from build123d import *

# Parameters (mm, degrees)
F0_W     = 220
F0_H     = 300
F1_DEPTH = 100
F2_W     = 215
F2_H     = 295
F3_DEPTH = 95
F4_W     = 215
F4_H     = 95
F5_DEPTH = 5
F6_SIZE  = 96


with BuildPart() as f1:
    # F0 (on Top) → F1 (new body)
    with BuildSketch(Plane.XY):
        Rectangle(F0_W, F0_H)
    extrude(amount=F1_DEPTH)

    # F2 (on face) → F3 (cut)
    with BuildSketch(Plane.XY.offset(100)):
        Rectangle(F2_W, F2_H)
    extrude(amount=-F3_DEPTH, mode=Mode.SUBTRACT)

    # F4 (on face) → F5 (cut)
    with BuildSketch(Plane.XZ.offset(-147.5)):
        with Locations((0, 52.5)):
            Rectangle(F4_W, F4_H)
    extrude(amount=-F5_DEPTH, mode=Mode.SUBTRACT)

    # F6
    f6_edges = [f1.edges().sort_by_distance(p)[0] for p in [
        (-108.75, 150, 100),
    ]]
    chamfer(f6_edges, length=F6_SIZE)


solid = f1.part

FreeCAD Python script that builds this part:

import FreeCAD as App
import Part
import Sketcher
Q = App.Units.Quantity


def edges_at(feature, points):
    """Names of the edges that pass closest to the given points."""
    edges = feature.Shape.Edges
    near = lambda p: min(range(len(edges)), key=lambda i: edges[i].distToShape(Part.Vertex(*p))[0])
    return sorted({f"Edge{near(p) + 1}" for p in points})


def add_polygon(sketch, points):
    """Adds a closed chain of lines whose ends are joined by coincident constraints."""
    first, n = sketch.GeometryCount, len(points)
    for a, b in zip(points, points[1:] + points[:1]):
        sketch.addGeometry(Part.LineSegment(App.Vector(*a, 0), App.Vector(*b, 0)), False)
    for i in range(n):
        sketch.addConstraint(Sketcher.Constraint("Coincident", first + i, 2, first + (i + 1) % n, 1))

doc = App.newDocument("Part")
body = doc.addObject("PartDesign::Body", "Body")

sketch1 = body.newObject("Sketcher::SketchObject", "Sketch")
sketch1.AttachmentSupport = (doc.getObject("XY_Plane"), [""])
sketch1.MapMode = "FlatFace"
add_polygon(sketch1, [(-110, 150), (-110, -150), (110, -150), (110, 150)])
sketch1.addConstraint(Sketcher.Constraint("Vertical", 0))
sketch1.addConstraint(Sketcher.Constraint("Horizontal", 1))
sketch1.addConstraint(Sketcher.Constraint("Vertical", 2))
sketch1.addConstraint(Sketcher.Constraint("Horizontal", 3))
sketch1.addConstraint(Sketcher.Constraint("Symmetric", 0, 2, 2, 2, -1, 1))
sketch1.addConstraint(Sketcher.Constraint("DistanceX", 1, 1, 1, 2, Q("220 mm")))
sketch1.addConstraint(Sketcher.Constraint("DistanceY", 0, 2, 0, 1, Q("300 mm")))
pad1 = body.newObject("PartDesign::Pad", "Pad")
pad1.Profile = sketch1
pad1.Length = 100

sketch2 = body.newObject("Sketcher::SketchObject", "Sketch001")
sketch2.AttachmentSupport = (doc.getObject("XY_Plane"), [""])
sketch2.MapMode = "FlatFace"
sketch2.AttachmentOffset = App.Placement(App.Vector(0, 0, 100), App.Rotation())
add_polygon(sketch2, [(-108, 148), (-108, -148), (108, -148), (108, 148)])
sketch2.addConstraint(Sketcher.Constraint("Vertical", 0))
sketch2.addConstraint(Sketcher.Constraint("Horizontal", 1))
sketch2.addConstraint(Sketcher.Constraint("Vertical", 2))
sketch2.addConstraint(Sketcher.Constraint("Horizontal", 3))
sketch2.addConstraint(Sketcher.Constraint("Symmetric", 0, 2, 2, 2, -1, 1))
sketch2.addConstraint(Sketcher.Constraint("DistanceX", 1, 1, 1, 2, Q("215 mm")))
sketch2.addConstraint(Sketcher.Constraint("DistanceY", 0, 2, 0, 1, Q("295 mm")))
pocket1 = body.newObject("PartDesign::Pocket", "Pocket")
pocket1.Profile = sketch2
pocket1.Length = 95

sketch3 = body.newObject("Sketcher::SketchObject", "Sketch002")
sketch3.AttachmentSupport = (doc.getObject("XZ_Plane"), [""])
sketch3.MapMode = "FlatFace"
sketch3.AttachmentOffset = App.Placement(App.Vector(0, 0, -147.5), App.Rotation())
add_polygon(sketch3, [(-108, 100), (-108, 5), (108, 5), (108, 100)])
sketch3.addConstraint(Sketcher.Constraint("Vertical", 0))
sketch3.addConstraint(Sketcher.Constraint("Horizontal", 1))
sketch3.addConstraint(Sketcher.Constraint("Vertical", 2))
sketch3.addConstraint(Sketcher.Constraint("Horizontal", 3))
sketch3.addConstraint(Sketcher.Constraint("DistanceX", 1, 1, 1, 2, Q("215 mm")))
sketch3.addConstraint(Sketcher.Constraint("DistanceY", 0, 2, 0, 1, Q("95 mm")))
sketch3.addConstraint(Sketcher.Constraint("DistanceY", -1, 1, 0, 2, Q("5 mm")))
sketch3.addConstraint(Sketcher.Constraint("DistanceX", 0, 2, -1, 1, Q("107.5 mm")))
pocket2 = body.newObject("PartDesign::Pocket", "Pocket001")
pocket2.Profile = sketch3
pocket2.Length = 5
doc.recompute()

chamfer = body.newObject("PartDesign::Chamfer", "Chamfer")
chamfer.Base = (pocket2, edges_at(pocket2, [(-108.75, 150, 100)]))
chamfer.Size = 96

doc.recompute()
